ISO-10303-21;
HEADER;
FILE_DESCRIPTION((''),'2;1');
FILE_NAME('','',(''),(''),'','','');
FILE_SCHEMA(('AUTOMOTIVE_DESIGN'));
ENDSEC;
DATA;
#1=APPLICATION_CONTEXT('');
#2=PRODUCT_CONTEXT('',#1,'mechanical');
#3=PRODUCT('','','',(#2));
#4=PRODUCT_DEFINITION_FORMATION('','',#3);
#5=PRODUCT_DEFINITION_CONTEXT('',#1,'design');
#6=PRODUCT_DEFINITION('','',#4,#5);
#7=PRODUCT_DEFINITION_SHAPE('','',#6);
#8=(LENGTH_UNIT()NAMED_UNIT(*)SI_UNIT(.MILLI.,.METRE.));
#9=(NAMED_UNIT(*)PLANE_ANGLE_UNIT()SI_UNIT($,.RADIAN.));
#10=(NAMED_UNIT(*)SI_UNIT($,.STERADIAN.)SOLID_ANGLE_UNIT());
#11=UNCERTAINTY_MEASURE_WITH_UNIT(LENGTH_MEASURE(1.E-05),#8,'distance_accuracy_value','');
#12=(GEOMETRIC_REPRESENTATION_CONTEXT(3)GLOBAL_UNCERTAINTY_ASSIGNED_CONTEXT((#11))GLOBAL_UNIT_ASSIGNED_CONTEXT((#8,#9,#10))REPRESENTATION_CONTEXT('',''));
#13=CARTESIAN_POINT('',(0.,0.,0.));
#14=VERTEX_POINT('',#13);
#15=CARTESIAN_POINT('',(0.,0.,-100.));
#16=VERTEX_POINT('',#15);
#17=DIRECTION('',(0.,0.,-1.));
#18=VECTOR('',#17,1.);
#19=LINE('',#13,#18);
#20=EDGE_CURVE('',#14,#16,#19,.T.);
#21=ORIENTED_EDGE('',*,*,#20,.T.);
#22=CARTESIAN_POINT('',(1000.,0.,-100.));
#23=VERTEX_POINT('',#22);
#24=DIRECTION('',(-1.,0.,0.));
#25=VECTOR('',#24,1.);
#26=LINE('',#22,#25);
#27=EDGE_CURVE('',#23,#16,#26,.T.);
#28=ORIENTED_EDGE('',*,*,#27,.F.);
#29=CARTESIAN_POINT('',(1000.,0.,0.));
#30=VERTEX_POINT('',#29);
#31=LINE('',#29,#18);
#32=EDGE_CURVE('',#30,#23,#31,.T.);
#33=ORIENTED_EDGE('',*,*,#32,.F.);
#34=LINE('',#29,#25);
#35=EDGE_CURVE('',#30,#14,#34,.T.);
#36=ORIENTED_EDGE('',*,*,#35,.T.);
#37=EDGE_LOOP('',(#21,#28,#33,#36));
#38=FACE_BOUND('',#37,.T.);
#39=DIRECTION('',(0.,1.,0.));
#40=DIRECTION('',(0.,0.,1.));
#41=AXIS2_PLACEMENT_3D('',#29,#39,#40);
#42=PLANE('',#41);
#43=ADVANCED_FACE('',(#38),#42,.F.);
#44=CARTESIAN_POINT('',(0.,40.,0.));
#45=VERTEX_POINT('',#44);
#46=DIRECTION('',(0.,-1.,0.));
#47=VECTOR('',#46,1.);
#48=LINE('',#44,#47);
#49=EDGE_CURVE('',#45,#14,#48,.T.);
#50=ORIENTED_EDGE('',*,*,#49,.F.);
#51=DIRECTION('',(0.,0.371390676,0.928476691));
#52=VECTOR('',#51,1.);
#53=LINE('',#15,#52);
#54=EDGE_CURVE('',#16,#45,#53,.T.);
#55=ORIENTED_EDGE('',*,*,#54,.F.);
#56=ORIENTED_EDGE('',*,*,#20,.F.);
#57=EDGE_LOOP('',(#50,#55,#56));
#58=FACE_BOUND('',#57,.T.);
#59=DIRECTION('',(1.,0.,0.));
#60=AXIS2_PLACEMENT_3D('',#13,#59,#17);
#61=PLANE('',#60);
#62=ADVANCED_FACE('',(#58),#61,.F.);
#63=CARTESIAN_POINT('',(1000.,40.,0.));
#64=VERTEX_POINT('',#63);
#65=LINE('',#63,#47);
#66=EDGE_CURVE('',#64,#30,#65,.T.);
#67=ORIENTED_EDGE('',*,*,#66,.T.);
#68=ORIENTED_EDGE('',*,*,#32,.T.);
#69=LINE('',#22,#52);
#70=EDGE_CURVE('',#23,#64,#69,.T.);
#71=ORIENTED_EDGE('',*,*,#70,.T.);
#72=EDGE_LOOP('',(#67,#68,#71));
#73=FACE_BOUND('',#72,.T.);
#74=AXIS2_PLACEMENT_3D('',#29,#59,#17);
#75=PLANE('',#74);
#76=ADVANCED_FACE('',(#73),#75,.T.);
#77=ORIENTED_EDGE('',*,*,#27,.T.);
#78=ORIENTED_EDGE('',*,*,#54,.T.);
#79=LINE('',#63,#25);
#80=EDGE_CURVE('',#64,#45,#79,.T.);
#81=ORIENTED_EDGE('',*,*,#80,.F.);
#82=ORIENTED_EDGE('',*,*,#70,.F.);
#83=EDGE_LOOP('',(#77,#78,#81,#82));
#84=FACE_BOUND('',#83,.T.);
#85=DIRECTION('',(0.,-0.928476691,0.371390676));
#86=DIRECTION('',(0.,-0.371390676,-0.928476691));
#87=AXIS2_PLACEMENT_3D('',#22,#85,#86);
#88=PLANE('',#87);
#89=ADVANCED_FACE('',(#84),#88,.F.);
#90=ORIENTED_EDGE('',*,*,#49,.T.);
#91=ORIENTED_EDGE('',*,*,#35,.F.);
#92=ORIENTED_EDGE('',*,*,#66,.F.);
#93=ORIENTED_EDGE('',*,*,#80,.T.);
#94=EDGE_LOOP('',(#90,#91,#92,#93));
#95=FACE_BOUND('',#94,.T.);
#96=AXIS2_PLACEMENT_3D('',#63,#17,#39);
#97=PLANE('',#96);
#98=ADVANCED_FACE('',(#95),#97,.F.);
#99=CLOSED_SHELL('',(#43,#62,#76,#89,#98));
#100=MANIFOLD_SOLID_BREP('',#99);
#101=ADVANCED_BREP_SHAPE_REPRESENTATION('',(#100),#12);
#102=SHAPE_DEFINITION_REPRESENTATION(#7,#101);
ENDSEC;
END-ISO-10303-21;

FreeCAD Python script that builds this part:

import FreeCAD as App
import Part
import Sketcher


def add_polygon(sketch, points):
    """Adds a closed chain of lines whose ends are joined by coincident constraints."""
    first, n = sketch.GeometryCount, len(points)
    for a, b in zip(points, points[1:] + points[:1]):
        sketch.addGeometry(Part.LineSegment(App.Vector(*a, 0), App.Vector(*b, 0)), False)
    for i in range(n):
        sketch.addConstraint(Sketcher.Constraint("Coincident", first + i, 2, first + (i + 1) % n, 1))

doc = App.newDocument("Part")
body = doc.addObject("PartDesign::Body", "Body")

# Sketch on YZ plane
sketch1 = doc.addObject("Sketcher::SketchObject", "Sketch")
body.addObject(sketch1)
sketch1.AttachmentSupport = (doc.YZ_Plane, [""])
sketch1.MapMode = "FlatFace"
add_polygon(sketch1, [(0, 0), (0, -100), (40, 0)])  # lines 0-2
sketch1.addConstraint(Sketcher.Constraint("Vertical", 0))
sketch1.addConstraint(Sketcher.Constraint("Horizontal", 2))
sketch1.addConstraint(Sketcher.Constraint("Coincident", 2, 2, -1, 1))
sketch1.addConstraint(Sketcher.Constraint("DistanceX", 2, 2, 2, 1, 40.0))
sketch1.addConstraint(Sketcher.Constraint("DistanceY", 0, 2, 0, 1, 100.0))
pad1 = doc.addObject("PartDesign::Pad", "Pad")
body.addObject(pad1)
pad1.Profile = sketch1
pad1.Length = 1000

doc.recompute()
